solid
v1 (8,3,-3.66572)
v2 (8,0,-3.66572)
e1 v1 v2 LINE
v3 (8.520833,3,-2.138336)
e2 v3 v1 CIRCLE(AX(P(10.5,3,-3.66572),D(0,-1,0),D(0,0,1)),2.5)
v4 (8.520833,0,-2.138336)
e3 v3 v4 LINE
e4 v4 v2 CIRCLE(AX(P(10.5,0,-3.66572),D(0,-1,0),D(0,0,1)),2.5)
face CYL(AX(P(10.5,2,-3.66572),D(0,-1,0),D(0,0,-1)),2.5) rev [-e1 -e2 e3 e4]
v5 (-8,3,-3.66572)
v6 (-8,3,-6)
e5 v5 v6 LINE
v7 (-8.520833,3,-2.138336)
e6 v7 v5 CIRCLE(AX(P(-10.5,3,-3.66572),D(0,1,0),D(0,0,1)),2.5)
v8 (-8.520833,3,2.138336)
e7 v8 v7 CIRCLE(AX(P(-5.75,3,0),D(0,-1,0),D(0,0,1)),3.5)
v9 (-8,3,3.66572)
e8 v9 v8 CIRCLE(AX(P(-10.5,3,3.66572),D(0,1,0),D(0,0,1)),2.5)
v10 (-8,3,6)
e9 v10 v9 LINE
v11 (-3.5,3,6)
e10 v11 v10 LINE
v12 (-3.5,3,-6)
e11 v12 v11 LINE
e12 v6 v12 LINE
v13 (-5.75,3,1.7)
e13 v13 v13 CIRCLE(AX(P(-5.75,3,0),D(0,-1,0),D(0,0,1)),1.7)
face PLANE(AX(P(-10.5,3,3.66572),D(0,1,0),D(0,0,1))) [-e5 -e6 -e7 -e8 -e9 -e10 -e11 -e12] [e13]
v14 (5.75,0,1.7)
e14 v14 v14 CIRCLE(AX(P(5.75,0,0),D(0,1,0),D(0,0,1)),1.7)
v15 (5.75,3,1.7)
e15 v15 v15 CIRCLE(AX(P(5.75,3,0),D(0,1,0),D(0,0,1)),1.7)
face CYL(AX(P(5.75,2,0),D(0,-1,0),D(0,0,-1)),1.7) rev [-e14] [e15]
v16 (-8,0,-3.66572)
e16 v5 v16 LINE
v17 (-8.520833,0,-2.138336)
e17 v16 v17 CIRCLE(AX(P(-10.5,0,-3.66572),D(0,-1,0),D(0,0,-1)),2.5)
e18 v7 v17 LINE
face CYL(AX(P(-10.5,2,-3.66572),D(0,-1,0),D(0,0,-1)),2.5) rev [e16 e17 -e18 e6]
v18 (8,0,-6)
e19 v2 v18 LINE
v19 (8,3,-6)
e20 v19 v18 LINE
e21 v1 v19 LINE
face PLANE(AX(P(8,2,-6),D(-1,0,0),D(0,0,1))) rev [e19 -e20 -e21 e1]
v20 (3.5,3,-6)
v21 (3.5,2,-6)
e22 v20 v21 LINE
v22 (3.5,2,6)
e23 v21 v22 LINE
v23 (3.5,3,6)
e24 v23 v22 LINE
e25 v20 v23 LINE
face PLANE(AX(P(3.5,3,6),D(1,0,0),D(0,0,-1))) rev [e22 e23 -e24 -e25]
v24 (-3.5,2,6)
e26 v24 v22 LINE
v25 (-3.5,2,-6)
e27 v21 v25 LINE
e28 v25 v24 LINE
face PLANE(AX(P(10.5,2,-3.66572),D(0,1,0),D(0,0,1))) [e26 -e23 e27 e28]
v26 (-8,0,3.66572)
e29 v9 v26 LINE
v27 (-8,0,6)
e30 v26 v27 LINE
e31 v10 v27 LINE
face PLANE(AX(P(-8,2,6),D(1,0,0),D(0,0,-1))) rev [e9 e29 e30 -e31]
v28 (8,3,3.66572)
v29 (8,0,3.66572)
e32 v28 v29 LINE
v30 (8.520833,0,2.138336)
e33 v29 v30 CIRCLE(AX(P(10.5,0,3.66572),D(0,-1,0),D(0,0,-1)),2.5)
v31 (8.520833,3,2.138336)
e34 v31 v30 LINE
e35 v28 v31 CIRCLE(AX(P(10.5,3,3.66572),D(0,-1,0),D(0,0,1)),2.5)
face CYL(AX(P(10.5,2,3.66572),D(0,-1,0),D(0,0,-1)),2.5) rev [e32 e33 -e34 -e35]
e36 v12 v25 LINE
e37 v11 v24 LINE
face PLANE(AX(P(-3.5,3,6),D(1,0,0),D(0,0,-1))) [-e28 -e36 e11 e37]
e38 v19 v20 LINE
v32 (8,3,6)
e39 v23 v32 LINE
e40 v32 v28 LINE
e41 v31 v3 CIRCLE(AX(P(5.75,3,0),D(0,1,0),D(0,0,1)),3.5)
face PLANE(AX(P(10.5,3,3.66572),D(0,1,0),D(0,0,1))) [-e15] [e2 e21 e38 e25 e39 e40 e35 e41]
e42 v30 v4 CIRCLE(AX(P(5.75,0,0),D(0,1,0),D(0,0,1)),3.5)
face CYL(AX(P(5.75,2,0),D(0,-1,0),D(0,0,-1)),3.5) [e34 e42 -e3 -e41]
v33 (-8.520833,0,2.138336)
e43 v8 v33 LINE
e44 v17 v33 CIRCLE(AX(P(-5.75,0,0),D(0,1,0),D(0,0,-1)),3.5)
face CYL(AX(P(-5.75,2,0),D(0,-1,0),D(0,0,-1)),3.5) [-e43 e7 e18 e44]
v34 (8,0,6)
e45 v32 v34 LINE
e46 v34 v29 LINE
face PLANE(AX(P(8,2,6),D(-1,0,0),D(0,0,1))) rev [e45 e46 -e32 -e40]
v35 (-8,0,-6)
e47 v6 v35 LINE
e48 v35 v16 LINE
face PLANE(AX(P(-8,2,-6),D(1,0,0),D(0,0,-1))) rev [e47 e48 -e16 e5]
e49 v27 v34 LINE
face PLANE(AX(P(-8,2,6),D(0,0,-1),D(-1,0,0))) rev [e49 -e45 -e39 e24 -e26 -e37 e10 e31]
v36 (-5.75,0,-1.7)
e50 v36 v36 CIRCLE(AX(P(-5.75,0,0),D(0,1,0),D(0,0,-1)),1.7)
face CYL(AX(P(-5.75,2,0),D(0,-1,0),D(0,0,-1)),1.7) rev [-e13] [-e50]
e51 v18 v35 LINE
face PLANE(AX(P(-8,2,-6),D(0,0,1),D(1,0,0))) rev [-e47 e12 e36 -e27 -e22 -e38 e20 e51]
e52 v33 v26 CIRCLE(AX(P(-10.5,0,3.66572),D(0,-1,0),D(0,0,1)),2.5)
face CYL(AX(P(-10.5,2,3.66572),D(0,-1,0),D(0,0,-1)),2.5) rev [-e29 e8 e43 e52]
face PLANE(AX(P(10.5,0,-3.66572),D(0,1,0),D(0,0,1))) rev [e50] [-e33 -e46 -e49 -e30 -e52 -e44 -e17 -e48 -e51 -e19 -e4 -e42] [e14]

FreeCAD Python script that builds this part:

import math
import FreeCAD as App
import Part
import Sketcher

doc = App.newDocument("Part")
body = doc.addObject("PartDesign::Body", "Body")

sketch1 = body.newObject("Sketcher::SketchObject", "Sketch")
sketch1.AttachmentSupport = (doc.getObject("XZ_Plane"), [""])
sketch1.MapMode = "FlatFace"
sketch1.addGeometry([
    Part.LineSegment(App.Vector(8, -6, 0), App.Vector(-8, -6, 0)),
    Part.LineSegment(App.Vector(-8, -6, 0), App.Vector(-8, -3.7, 0)),
    Part.ArcOfCircle(Part.Circle(App.Vector(-10.5, -3.7, 0), App.Vector(0, 0, 1), 2.5), math.radians(0), math.radians(38)),
    Part.ArcOfCircle(Part.Circle(App.Vector(-5.8, 0, 0), App.Vector(0, 0, 1), 3.5), math.radians(142), math.radians(218)),
    Part.ArcOfCircle(Part.Circle(App.Vector(-10.5, 3.7, 0), App.Vector(0, 0, 1), 2.5), math.radians(-38), math.radians(0)),
    Part.LineSegment(App.Vector(-8, 3.7, 0), App.Vector(-8, 6, 0)),
    Part.LineSegment(App.Vector(-8, 6, 0), App.Vector(8, 6, 0)),
    Part.LineSegment(App.Vector(8, 6, 0), App.Vector(8, 3.7, 0)),
    Part.ArcOfCircle(Part.Circle(App.Vector(10.5, 3.7, 0), App.Vector(0, 0, 1), 2.5), math.radians(180), math.radians(218)),
    Part.ArcOfCircle(Part.Circle(App.Vector(5.8, 0, 0), App.Vector(0, 0, 1), 3.5), math.radians(-38), math.radians(38)),
    Part.ArcOfCircle(Part.Circle(App.Vector(10.5, -3.7, 0), App.Vector(0, 0, 1), 2.5), math.radians(142), math.radians(180)),
    Part.LineSegment(App.Vector(8, -3.7, 0), App.Vector(8, -6, 0)),
    Part.Circle(App.Vector(5.8, 0, 0), App.Vector(0, 0, 1), 1.7),
    Part.Circle(App.Vector(-5.8, 0, 0), App.Vector(0, 0, 1), 1.7),
], False)
sketch1.addConstraint([
    Sketcher.Constraint("Coincident", 0, 2, 1, 1),
    Sketcher.Constraint("Tangent", 1, 2, 2, 1),
    Sketcher.Constraint("Tangent", 2, 2, 3, 2),
    Sketcher.Constraint("Tangent", 3, 1, 4, 1),
    Sketcher.Constraint("Tangent", 4, 2, 5, 1),
    Sketcher.Constraint("Coincident", 5, 2, 6, 1),
    Sketcher.Constraint("Coincident", 6, 2, 7, 1),
    Sketcher.Constraint("Tangent", 7, 2, 8, 1),
    Sketcher.Constraint("Tangent", 8, 2, 9, 2),
    Sketcher.Constraint("Tangent", 9, 1, 10, 1),
    Sketcher.Constraint("Tangent", 10, 2, 11, 1),
    Sketcher.Constraint("Coincident", 11, 2, 0, 1),
    Sketcher.Constraint("Horizontal", 0),
    Sketcher.Constraint("Vertical", 1),
    Sketcher.Constraint("Vertical", 5),
    Sketcher.Constraint("Horizontal", 6),
    Sketcher.Constraint("Vertical", 7),
    Sketcher.Constraint("Vertical", 11),
    Sketcher.Constraint("Coincident", 12, 3, 9, 3),
    Sketcher.Constraint("Coincident", 13, 3, 3, 3),
    Sketcher.Constraint("Equal", 2, 4),
    Sketcher.Constraint("Equal", 4, 8),
    Sketcher.Constraint("Equal", 3, 9),
    Sketcher.Constraint("Equal", 8, 10),
    Sketcher.Constraint("Equal", 12, 13),
    Sketcher.Constraint("Symmetric", 2, 3, 8, 3, -1, 1),
    Sketcher.Constraint("Symmetric", 4, 3, 10, 3, -1, 1),
    Sketcher.Constraint("Symmetric", 4, 3, 8, 3, -2),
    Sketcher.Constraint("Equal", 1, 5),
    Sketcher.Constraint("Diameter", 12, 3.4),
    Sketcher.Constraint("Radius", 2, 2.5),
    Sketcher.Constraint("Radius", 3, 3.5),
    Sketcher.Constraint("DistanceX", 0, 2, 0, 1, 16.0),
    Sketcher.Constraint("DistanceY", 0, 2, -1, 1, 6.0),
    Sketcher.Constraint("DistanceX", 3, 3, 9, 3, 11.5),
])
pad1 = body.newObject("PartDesign::Pad", "Pad")
pad1.Profile = sketch1
pad1.Length = 2
pad1.Reversed = True

sketch2 = body.newObject("Sketcher::SketchObject", "Sketch001")
sketch2.AttachmentSupport = (doc.getObject("XZ_Plane"), [""])
sketch2.MapMode = "FlatFace"
sketch2.AttachmentOffset = App.Placement(App.Vector(0, 0, -2), App.Rotation())
sketch2.addGeometry([
    Part.LineSegment(App.Vector(3.5, -6, 0), App.Vector(3.5, 6, 0)),
    Part.LineSegment(App.Vector(3.5, 6, 0), App.Vector(8, 6, 0)),
    Part.LineSegment(App.Vector(8, 6, 0), App.Vector(8, 3.7, 0)),
    Part.ArcOfCircle(Part.Circle(App.Vector(10.5, 3.7, 0), App.Vector(0, 0, 1), 2.5), math.radians(180), math.radians(218)),
    Part.ArcOfCircle(Part.Circle(App.Vector(5.8, 0, 0), App.Vector(0, 0, 1), 3.5), math.radians(-38), math.radians(38)),
    Part.ArcOfCircle(Part.Circle(App.Vector(10.5, -3.7, 0), App.Vector(0, 0, 1), 2.5), math.radians(142), math.radians(180)),
    Part.LineSegment(App.Vector(8, -3.7, 0), App.Vector(8, -6, 0)),
    Part.LineSegment(App.Vector(8, -6, 0), App.Vector(3.5, -6, 0)),
    Part.Circle(App.Vector(5.8, 0, 0), App.Vector(0, 0, 1), 1.7),
], False)
sketch2.addConstraint([
    Sketcher.Constraint("Coincident", 0, 2, 1, 1),
    Sketcher.Constraint("Coincident", 1, 2, 2, 1),
    Sketcher.Constraint("Tangent", 2, 2, 3, 1),
    Sketcher.Constraint("Tangent", 3, 2, 4, 2),
    Sketcher.Constraint("Tangent", 4, 1, 5, 1),
    Sketcher.Constraint("Tangent", 5, 2, 6, 1),
    Sketcher.Constraint("Coincident", 6, 2, 7, 1),
    Sketcher.Constraint("Coincident", 7, 2, 0, 1),
    Sketcher.Constraint("Vertical", 0),
    Sketcher.Constraint("Horizontal", 1),
    Sketcher.Constraint("Vertical", 2),
    Sketcher.Constraint("Vertical", 6),
    Sketcher.Constraint("Horizontal", 7),
    Sketcher.Constraint("Coincident", 8, 3, 4, 3),
    Sketcher.Constraint("Equal", 3, 5),
    Sketcher.Constraint("Symmetric", 3, 3, 5, 3, -1),
    Sketcher.Constraint("Equal", 2, 6),
    Sketcher.Constraint("Diameter", 8, 3.4),
    Sketcher.Constraint("Radius", 3, 2.5),
    Sketcher.Constraint("Radius", 4, 3.5),
    Sketcher.Constraint("DistanceY", 0, 1, 0, 2, 12.0),
    Sketcher.Constraint("DistanceX", 1, 1, 1, 2, 4.5),
    Sketcher.Constraint("DistanceX", -1, 1, 1, 2, 8.0),
    Sketcher.Constraint("DistanceX", -1, 1, 4, 3, 5.75),
])
pad2 = body.newObject("PartDesign::Pad", "Pad001")
pad2.Profile = sketch2
pad2.Length = 1
pad2.Reversed = True
doc.recompute()

mirrored = body.newObject("PartDesign::Mirrored", "Mirrored")
mirrored.Originals = [pad2]
mirrored.MirrorPlane = (doc.getObject("YZ_Plane"), [""])
body.Tip = mirrored

doc.recompute()
